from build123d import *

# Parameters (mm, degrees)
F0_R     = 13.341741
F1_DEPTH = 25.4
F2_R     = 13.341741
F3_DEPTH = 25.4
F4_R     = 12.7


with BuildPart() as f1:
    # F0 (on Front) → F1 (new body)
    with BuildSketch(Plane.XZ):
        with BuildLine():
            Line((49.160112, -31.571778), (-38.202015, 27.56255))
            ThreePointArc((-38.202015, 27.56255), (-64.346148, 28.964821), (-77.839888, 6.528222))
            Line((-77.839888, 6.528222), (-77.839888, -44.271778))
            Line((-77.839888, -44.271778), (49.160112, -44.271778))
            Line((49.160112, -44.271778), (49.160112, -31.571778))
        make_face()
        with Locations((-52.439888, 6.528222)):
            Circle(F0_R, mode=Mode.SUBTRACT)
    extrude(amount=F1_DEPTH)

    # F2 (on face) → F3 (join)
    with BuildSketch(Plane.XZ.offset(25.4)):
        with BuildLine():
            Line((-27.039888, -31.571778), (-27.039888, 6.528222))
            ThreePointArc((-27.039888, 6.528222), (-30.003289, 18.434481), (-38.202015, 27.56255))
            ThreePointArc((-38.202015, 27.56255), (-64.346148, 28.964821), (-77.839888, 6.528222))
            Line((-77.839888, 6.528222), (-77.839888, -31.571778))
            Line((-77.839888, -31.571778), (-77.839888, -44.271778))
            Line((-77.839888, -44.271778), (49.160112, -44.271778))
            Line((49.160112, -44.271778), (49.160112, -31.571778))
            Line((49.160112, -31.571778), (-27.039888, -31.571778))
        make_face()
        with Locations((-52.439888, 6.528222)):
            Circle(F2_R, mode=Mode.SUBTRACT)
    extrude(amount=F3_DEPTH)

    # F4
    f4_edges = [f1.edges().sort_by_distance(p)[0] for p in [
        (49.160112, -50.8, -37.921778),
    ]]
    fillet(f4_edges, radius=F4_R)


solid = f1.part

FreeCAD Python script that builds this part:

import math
import FreeCAD as App
import Part
import Sketcher

V = App.Vector
Q = App.Units.Quantity


def edges_at(feature, points):
    """Names of the edges that pass closest to the given points."""
    edges = feature.Shape.Edges
    near = lambda p: min(range(len(edges)), key=lambda i: edges[i].distToShape(Part.Vertex(*p))[0])
    return sorted({f"Edge{near(p) + 1}" for p in points})

doc = App.newDocument("Part")
params = doc.addObject("Spreadsheet::Sheet", "Params")
for row, (alias, value) in enumerate([
    ("sketch1_radius", "1 in"),
    ("sketch1_width", "5 in"),
    ("sketch1_height", "2 in"),
    ("sketch1_height2", "0.5 in"),
    ("pad1_length", "1 in"),
    ("sketch2_radius", "1.0000001 in"),
    ("sketch2_width", "5 in"),
    ("sketch2_height", "2 in"),
    ("sketch2_height2", "1.5 in"),
    ("pad2_length", "1 in"),
    ("fillet_radius", "0.5 in"),
], start=1):
    params.set(f"A{row}", alias)
    params.set(f"B{row}", "=" + value)
    params.setAlias(f"B{row}", alias)

body = doc.addObject("PartDesign::Body", "Body")

sketch1 = body.newObject("Sketcher::SketchObject", "Sketch")
sketch1.AttachmentSupport = (doc.getObject("XZ_Plane"), [""])
sketch1.MapMode = "FlatFace"
sketch1.addGeometry(Part.LineSegment(V(49, -32, 0), V(-38, 28, 0)), False)
sketch1.addGeometry(Part.ArcOfCircle(Part.Circle(V(-52, 7, 0), V(0, 0, 1), 25), math.radians(56), math.radians(180)), False)
sketch1.addGeometry(Part.LineSegment(V(-78, 7, 0), V(-78, -44, 0)), False)
sketch1.addGeometry(Part.LineSegment(V(-78, -44, 0), V(49, -44, 0)), False)
sketch1.addGeometry(Part.LineSegment(V(49, -44, 0), V(49, -32, 0)), False)
sketch1.addGeometry(Part.Circle(V(-52, 7, 0), V(0, 0, 1), 13), False)
sketch1.addConstraint(Sketcher.Constraint("Tangent", 0, 2, 1, 1))
sketch1.addConstraint(Sketcher.Constraint("Tangent", 1, 2, 2, 1))
sketch1.addConstraint(Sketcher.Constraint("Coincident", 2, 2, 3, 1))
sketch1.addConstraint(Sketcher.Constraint("Coincident", 3, 2, 4, 1))
sketch1.addConstraint(Sketcher.Constraint("Coincident", 4, 2, 0, 1))
sketch1.addConstraint(Sketcher.Constraint("Vertical", 2))
sketch1.addConstraint(Sketcher.Constraint("Horizontal", 3))
sketch1.addConstraint(Sketcher.Constraint("Vertical", 4))
sketch1.addConstraint(Sketcher.Constraint("Coincident", 5, 3, 1, 3))
sketch1.addConstraint(Sketcher.Constraint("Radius", 1, Q("1 in")))
sketch1.addConstraint(Sketcher.Constraint("DistanceX", 3, 1, 3, 2, Q("5 in")))
sketch1.addConstraint(Sketcher.Constraint("DistanceY", 2, 2, 2, 1, Q("2 in")))
sketch1.addConstraint(Sketcher.Constraint("DistanceY", 4, 1, 4, 2, Q("0.5 in")))
sketch1.addConstraint(Sketcher.Constraint("Diameter", 5, Q("26.683482 mm")))
sketch1.addConstraint(Sketcher.Constraint("DistanceX", 1, 3, -1, 1, Q("52.439888 mm")))
sketch1.addConstraint(Sketcher.Constraint("DistanceY", -1, 1, 0, 2, Q("27.56255 mm")))
sketch1.setExpression("Constraints[9]", "Params.sketch1_radius")
sketch1.setExpression("Constraints[10]", "Params.sketch1_width")
sketch1.setExpression("Constraints[11]", "Params.sketch1_height")
sketch1.setExpression("Constraints[12]", "Params.sketch1_height2")
pad1 = body.newObject("PartDesign::Pad", "Pad")
pad1.Profile = sketch1
pad1.setExpression("Length", "Params.pad1_length")

sketch2 = body.newObject("Sketcher::SketchObject", "Sketch001")
sketch2.AttachmentSupport = (doc.getObject("XZ_Plane"), [""])
sketch2.MapMode = "FlatFace"
sketch2.AttachmentOffset = App.Placement(V(0, 0, 1 * 25.4), App.Rotation())
sketch2.addGeometry(Part.LineSegment(V(-27, -32, 0), V(-27, 7, 0)), False)
sketch2.addGeometry(Part.ArcOfCircle(Part.Circle(V(-52, 7, 0), V(0, 0, 1), 25), math.radians(0), math.radians(56)), False)
sketch2.addGeometry(Part.ArcOfCircle(Part.Circle(V(-52, 7, 0), V(0, 0, 1), 25), math.radians(56), math.radians(180)), False)
sketch2.addGeometry(Part.LineSegment(V(-78, 7, 0), V(-78, -44, 0)), False)
sketch2.addGeometry(Part.LineSegment(V(-78, -44, 0), V(49, -44, 0)), False)
sketch2.addGeometry(Part.LineSegment(V(49, -44, 0), V(49, -32, 0)), False)
sketch2.addGeometry(Part.LineSegment(V(49, -32, 0), V(-27, -32, 0)), False)
sketch2.addGeometry(Part.Circle(V(-52, 7, 0), V(0, 0, 1), 13), False)
sketch2.addConstraint(Sketcher.Constraint("Tangent", 0, 2, 1, 1))
sketch2.addConstraint(Sketcher.Constraint("Tangent", 1, 2, 2, 1))
sketch2.addConstraint(Sketcher.Constraint("Tangent", 2, 2, 3, 1))
sketch2.addConstraint(Sketcher.Constraint("Coincident", 3, 2, 4, 1))
sketch2.addConstraint(Sketcher.Constraint("Coincident", 4, 2, 5, 1))
sketch2.addConstraint(Sketcher.Constraint("Coincident", 5, 2, 6, 1))
sketch2.addConstraint(Sketcher.Constraint("Coincident", 6, 2, 0, 1))
sketch2.addConstraint(Sketcher.Constraint("Vertical", 0))
sketch2.addConstraint(Sketcher.Constraint("Vertical", 3))
sketch2.addConstraint(Sketcher.Constraint("Horizontal", 4))
sketch2.addConstraint(Sketcher.Constraint("Vertical", 5))
sketch2.addConstraint(Sketcher.Constraint("Horizontal", 6))
sketch2.addConstraint(Sketcher.Constraint("Coincident", 7, 3, 1, 3))
sketch2.addConstraint(Sketcher.Constraint("Horizontal", 0, 2, 2, 2))
sketch2.addConstraint(Sketcher.Constraint("Radius", 1, Q("1.0000001 in")))
sketch2.addConstraint(Sketcher.Constraint("DistanceX", 4, 1, 4, 2, Q("5 in")))
sketch2.addConstraint(Sketcher.Constraint("DistanceY", 3, 2, 3, 1, Q("2 in")))
sketch2.addConstraint(Sketcher.Constraint("DistanceY", 0, 1, 0, 2, Q("1.5 in")))
sketch2.addConstraint(Sketcher.Constraint("Diameter", 7, Q("26.683482 mm")))
sketch2.addConstraint(Sketcher.Constraint("DistanceX", 1, 3, -1, 1, Q("52.43989 mm")))
sketch2.addConstraint(Sketcher.Constraint("DistanceY", -1, 1, 1, 3, Q("6.528221 mm")))
sketch2.addConstraint(Sketcher.Constraint("DistanceY", -1, 1, 1, 2, Q("27.56255 mm")))
sketch2.setExpression("Constraints[14]", "Params.sketch2_radius")
sketch2.setExpression("Constraints[15]", "Params.sketch2_width")
sketch2.setExpression("Constraints[16]", "Params.sketch2_height")
sketch2.setExpression("Constraints[17]", "Params.sketch2_height2")
pad2 = body.newObject("PartDesign::Pad", "Pad001")
pad2.Profile = sketch2
pad2.setExpression("Length", "Params.pad2_length")
doc.recompute()

fillet = body.newObject("PartDesign::Fillet", "Fillet")
fillet.Base = (pad2, edges_at(pad2, [(49.16, -50.8, -37.922)]))
fillet.setExpression("Radius", "Params.fillet_radius")

doc.recompute()
